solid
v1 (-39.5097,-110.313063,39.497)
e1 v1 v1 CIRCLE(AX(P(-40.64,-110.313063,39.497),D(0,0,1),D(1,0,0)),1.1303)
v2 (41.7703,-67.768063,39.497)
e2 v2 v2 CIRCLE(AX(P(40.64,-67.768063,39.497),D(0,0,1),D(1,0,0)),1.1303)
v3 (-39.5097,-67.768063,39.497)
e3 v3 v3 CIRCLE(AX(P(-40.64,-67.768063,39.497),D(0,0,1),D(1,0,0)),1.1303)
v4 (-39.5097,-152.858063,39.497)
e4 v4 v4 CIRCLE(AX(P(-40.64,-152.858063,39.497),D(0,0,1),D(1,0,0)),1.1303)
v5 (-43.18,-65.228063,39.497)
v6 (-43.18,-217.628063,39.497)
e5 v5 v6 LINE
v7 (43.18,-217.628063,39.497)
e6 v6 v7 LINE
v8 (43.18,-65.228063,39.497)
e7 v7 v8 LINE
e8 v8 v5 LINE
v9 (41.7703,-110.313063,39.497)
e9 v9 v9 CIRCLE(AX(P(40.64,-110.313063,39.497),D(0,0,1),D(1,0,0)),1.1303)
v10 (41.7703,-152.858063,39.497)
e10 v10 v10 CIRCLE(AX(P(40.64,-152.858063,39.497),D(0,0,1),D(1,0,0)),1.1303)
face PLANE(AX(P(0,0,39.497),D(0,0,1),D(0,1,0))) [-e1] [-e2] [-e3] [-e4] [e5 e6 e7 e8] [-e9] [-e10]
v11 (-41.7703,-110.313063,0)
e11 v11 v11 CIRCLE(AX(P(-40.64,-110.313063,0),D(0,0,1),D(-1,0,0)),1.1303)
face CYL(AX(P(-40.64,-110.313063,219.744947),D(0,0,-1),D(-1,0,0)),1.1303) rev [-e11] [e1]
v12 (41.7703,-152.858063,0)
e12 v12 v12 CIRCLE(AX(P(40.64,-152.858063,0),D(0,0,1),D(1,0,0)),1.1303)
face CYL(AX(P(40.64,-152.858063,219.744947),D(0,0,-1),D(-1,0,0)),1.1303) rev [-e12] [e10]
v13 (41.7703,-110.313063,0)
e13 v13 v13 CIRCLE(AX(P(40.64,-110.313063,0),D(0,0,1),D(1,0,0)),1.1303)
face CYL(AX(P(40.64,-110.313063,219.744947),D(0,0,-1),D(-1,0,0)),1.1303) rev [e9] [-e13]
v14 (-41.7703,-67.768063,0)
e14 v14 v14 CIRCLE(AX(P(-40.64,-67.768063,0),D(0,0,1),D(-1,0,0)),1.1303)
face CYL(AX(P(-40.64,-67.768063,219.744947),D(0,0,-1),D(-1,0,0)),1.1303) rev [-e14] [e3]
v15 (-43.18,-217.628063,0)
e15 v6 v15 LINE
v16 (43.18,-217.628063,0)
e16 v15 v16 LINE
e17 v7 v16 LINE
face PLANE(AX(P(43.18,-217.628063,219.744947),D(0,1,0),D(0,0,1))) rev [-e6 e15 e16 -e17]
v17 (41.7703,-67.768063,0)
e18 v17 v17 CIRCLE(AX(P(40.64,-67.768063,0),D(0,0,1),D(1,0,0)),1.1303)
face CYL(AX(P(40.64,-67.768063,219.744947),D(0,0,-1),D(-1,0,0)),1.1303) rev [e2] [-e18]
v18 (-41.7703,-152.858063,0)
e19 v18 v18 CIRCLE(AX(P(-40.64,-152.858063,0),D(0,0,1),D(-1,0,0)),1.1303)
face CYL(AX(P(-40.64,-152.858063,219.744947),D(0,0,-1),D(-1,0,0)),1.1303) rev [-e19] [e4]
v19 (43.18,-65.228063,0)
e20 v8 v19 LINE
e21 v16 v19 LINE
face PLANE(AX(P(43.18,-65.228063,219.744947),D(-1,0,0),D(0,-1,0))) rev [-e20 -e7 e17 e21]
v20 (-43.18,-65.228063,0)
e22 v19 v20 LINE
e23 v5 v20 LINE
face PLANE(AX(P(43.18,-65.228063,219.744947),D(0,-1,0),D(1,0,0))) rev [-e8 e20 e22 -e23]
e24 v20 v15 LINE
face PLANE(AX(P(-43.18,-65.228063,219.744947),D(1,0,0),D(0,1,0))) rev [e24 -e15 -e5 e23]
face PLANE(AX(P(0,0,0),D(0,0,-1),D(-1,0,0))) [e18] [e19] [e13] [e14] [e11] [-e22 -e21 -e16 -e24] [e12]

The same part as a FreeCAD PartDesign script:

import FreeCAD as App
import Part
import Sketcher
Q = App.Units.Quantity


def add_polygon(sketch, points):
    """Adds a closed chain of lines whose ends are joined by coincident constraints."""
    first, n = sketch.GeometryCount, len(points)
    for a, b in zip(points, points[1:] + points[:1]):
        sketch.addGeometry(Part.LineSegment(App.Vector(*a, 0), App.Vector(*b, 0)), False)
    for i in range(n):
        sketch.addConstraint(Sketcher.Constraint("Coincident", first + i, 2, first + (i + 1) % n, 1))

doc = App.newDocument("Part")
body = doc.addObject("PartDesign::Body", "Body")

# Sketch on XY plane
sketch1 = doc.addObject("Sketcher::SketchObject", "Sketch")
body.addObject(sketch1)
sketch1.AttachmentSupport = (doc.XY_Plane, [""])
sketch1.MapMode = "FlatFace"
add_polygon(sketch1, [(-43.18, -65.228063), (-43.18, -217.628063), (43.18, -217.628063), (43.18, -65.228063)])  # lines 0-3
sketch1.addGeometry(Part.Circle(App.Vector(-40.64, -152.858063, 0), App.Vector(0, 0, 1), 1.1303), False)  # 4
sketch1.addGeometry(Part.Circle(App.Vector(-40.64, -110.313063, 0), App.Vector(0, 0, 1), 1.1303), False)  # 5
sketch1.addGeometry(Part.Circle(App.Vector(40.64, -152.858063, 0), App.Vector(0, 0, 1), 1.1303), False)  # 6
sketch1.addGeometry(Part.Circle(App.Vector(40.64, -110.313063, 0), App.Vector(0, 0, 1), 1.1303), False)  # 7
sketch1.addGeometry(Part.Circle(App.Vector(-40.64, -67.768063, 0), App.Vector(0, 0, 1), 1.1303), False)  # 8
sketch1.addGeometry(Part.Circle(App.Vector(40.64, -67.768063, 0), App.Vector(0, 0, 1), 1.1303), False)  # 9
sketch1.addConstraint(Sketcher.Constraint("Vertical", 0))
sketch1.addConstraint(Sketcher.Constraint("Horizontal", 1))
sketch1.addConstraint(Sketcher.Constraint("Vertical", 2))
sketch1.addConstraint(Sketcher.Constraint("Horizontal", 3))
sketch1.addConstraint(Sketcher.Constraint("Equal", 4, 5))
sketch1.addConstraint(Sketcher.Constraint("Equal", 5, 6))
sketch1.addConstraint(Sketcher.Constraint("Equal", 6, 7))
sketch1.addConstraint(Sketcher.Constraint("Equal", 7, 8))
sketch1.addConstraint(Sketcher.Constraint("Equal", 8, 9))
sketch1.addConstraint(Sketcher.Constraint("Symmetric", 4, 3, 6, 3, -2))
sketch1.addConstraint(Sketcher.Constraint("Symmetric", 5, 3, 7, 3, -2))
sketch1.addConstraint(Sketcher.Constraint("Symmetric", 8, 3, 9, 3, -2))
sketch1.addConstraint(Sketcher.Constraint("Vertical", 4, 3, 5, 3))
sketch1.addConstraint(Sketcher.Constraint("Vertical", 5, 3, 8, 3))
sketch1.addConstraint(Sketcher.Constraint("DistanceY", 0, 2, 0, 1, Q("6 in")))
sketch1.addConstraint(Sketcher.Constraint("Diameter", 4, Q("0.089 in")))
sketch1.addConstraint(Sketcher.Constraint("DistanceX", 1, 1, 1, 2, Q("3.4 in")))
sketch1.addConstraint(Sketcher.Constraint("DistanceX", 4, 3, -1, 1, Q("1.6 in")))
sketch1.addConstraint(Sketcher.Constraint("DistanceX", 0, 2, -1, 1, Q("1.7 in")))
sketch1.addConstraint(Sketcher.Constraint("DistanceY", 0, 2, 8, 3, Q("5.9 in")))
sketch1.addConstraint(Sketcher.Constraint("DistanceY", 4, 3, 8, 3, Q("3.35 in")))
sketch1.addConstraint(Sketcher.Constraint("DistanceY", 4, 3, 5, 3, Q("1.675 in")))
sketch1.addConstraint(Sketcher.Constraint("DistanceY", 4, 3, -1, 1, Q("152.858063 mm")))
pad1 = doc.addObject("PartDesign::Pad", "Pad")
body.addObject(pad1)
pad1.Profile = sketch1
pad1.Length = Q("1.555 in")

doc.recompute()
